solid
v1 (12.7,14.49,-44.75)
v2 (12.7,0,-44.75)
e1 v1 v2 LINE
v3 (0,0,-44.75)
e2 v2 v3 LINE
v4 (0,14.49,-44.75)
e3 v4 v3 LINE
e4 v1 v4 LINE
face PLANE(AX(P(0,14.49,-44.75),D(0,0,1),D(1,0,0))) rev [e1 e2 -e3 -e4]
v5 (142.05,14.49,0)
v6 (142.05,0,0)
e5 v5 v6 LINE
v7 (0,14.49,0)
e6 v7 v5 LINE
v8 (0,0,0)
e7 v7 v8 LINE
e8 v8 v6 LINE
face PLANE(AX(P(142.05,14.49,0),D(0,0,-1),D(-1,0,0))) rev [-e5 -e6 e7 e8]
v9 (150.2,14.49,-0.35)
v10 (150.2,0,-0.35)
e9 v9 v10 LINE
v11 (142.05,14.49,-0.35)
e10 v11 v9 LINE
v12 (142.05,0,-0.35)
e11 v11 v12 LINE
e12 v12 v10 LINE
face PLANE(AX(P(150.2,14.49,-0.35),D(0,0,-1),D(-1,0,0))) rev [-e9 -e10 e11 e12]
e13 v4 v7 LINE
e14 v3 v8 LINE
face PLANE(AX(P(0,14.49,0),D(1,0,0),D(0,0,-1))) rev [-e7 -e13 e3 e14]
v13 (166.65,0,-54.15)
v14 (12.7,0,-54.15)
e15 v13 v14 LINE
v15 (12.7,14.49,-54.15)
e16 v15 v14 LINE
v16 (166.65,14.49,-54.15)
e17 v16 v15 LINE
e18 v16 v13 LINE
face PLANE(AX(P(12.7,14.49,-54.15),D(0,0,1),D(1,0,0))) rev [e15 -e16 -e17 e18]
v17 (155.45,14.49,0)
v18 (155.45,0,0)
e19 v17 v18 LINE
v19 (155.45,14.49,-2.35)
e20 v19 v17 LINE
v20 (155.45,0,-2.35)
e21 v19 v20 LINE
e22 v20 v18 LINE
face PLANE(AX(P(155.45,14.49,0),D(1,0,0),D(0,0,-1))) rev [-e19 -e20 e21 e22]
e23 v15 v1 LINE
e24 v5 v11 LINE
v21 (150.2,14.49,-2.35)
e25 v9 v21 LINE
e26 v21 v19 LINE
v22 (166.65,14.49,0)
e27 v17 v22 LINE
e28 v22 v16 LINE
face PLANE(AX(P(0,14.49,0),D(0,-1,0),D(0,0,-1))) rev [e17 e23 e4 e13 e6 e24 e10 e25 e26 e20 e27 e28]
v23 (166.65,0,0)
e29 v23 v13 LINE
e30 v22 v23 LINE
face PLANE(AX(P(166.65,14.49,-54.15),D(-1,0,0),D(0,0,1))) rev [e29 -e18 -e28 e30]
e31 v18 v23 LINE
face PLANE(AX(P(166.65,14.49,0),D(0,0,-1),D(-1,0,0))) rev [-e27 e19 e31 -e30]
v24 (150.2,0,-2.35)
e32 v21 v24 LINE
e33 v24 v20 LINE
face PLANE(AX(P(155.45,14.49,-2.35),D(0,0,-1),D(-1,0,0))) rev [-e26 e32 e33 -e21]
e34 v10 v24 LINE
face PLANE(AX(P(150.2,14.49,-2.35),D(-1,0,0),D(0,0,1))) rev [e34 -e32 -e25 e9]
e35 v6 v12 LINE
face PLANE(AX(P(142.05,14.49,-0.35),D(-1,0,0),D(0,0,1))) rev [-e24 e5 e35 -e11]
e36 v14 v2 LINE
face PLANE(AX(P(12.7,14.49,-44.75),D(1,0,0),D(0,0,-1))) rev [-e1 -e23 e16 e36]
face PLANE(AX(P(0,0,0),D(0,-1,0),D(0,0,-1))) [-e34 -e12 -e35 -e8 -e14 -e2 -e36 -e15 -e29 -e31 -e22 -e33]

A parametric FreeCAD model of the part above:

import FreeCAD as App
import Part
import Sketcher


def add_polygon(sketch, points):
    """Adds a closed chain of lines whose ends are joined by coincident constraints."""
    first, n = sketch.GeometryCount, len(points)
    for a, b in zip(points, points[1:] + points[:1]):
        sketch.addGeometry(Part.LineSegment(App.Vector(*a, 0), App.Vector(*b, 0)), False)
    for i in range(n):
        sketch.addConstraint(Sketcher.Constraint("Coincident", first + i, 2, first + (i + 1) % n, 1))

doc = App.newDocument("Part")
body = doc.addObject("PartDesign::Body", "Body")

# Sketch on XZ plane
sketch1 = body.newObject("Sketcher::SketchObject", "Sketch")
sketch1.AttachmentSupport = (doc.getObject("XZ_Plane"), [""])
sketch1.MapMode = "FlatFace"
add_polygon(sketch1, [(0, -44.75), (0, 0), (142.05, 0), (142.05, -0.35), (150.2, -0.35), (150.2, -2.35), (155.45, -2.35), (155.45, 0), (166.65, 0), (166.65, -54.15), (12.7, -54.15), (12.7, -44.75)])  # lines 0-11
sketch1.addConstraint([
    Sketcher.Constraint("Vertical", 0),
    Sketcher.Constraint("Horizontal", 1),
    Sketcher.Constraint("Vertical", 2),
    Sketcher.Constraint("Horizontal", 3),
    Sketcher.Constraint("Vertical", 4),
    Sketcher.Constraint("Horizontal", 5),
    Sketcher.Constraint("Vertical", 6),
    Sketcher.Constraint("Horizontal", 7),
    Sketcher.Constraint("Vertical", 8),
    Sketcher.Constraint("Horizontal", 9),
    Sketcher.Constraint("Vertical", 10),
    Sketcher.Constraint("Horizontal", 11),
    Sketcher.Constraint("Coincident", 0, 2, -1, 1),
    Sketcher.Constraint("PointOnObject", 6, 2, -1),
    Sketcher.Constraint("DistanceY", 4, 2, 4, 1, 2.0),
    Sketcher.Constraint("DistanceX", 7, 1, 7, 2, 11.2),
    Sketcher.Constraint("DistanceX", 11, 2, 11, 1, 12.7),
    Sketcher.Constraint("DistanceY", 10, 1, 10, 2, 9.4),
    Sketcher.Constraint("DistanceX", 1, 1, 1, 2, 142.05),
    Sketcher.Constraint("DistanceX", 3, 1, 3, 2, 8.15),
    Sketcher.Constraint("DistanceX", 5, 1, 5, 2, 5.25),
    Sketcher.Constraint("DistanceY", 0, 1, 0, 2, 44.75),
    Sketcher.Constraint("DistanceY", 2, 2, 2, 1, 0.35),
])
pad1 = body.newObject("PartDesign::Pad", "Pad")
pad1.Profile = sketch1
pad1.Length = 14.49
pad1.Reversed = True

doc.recompute()
